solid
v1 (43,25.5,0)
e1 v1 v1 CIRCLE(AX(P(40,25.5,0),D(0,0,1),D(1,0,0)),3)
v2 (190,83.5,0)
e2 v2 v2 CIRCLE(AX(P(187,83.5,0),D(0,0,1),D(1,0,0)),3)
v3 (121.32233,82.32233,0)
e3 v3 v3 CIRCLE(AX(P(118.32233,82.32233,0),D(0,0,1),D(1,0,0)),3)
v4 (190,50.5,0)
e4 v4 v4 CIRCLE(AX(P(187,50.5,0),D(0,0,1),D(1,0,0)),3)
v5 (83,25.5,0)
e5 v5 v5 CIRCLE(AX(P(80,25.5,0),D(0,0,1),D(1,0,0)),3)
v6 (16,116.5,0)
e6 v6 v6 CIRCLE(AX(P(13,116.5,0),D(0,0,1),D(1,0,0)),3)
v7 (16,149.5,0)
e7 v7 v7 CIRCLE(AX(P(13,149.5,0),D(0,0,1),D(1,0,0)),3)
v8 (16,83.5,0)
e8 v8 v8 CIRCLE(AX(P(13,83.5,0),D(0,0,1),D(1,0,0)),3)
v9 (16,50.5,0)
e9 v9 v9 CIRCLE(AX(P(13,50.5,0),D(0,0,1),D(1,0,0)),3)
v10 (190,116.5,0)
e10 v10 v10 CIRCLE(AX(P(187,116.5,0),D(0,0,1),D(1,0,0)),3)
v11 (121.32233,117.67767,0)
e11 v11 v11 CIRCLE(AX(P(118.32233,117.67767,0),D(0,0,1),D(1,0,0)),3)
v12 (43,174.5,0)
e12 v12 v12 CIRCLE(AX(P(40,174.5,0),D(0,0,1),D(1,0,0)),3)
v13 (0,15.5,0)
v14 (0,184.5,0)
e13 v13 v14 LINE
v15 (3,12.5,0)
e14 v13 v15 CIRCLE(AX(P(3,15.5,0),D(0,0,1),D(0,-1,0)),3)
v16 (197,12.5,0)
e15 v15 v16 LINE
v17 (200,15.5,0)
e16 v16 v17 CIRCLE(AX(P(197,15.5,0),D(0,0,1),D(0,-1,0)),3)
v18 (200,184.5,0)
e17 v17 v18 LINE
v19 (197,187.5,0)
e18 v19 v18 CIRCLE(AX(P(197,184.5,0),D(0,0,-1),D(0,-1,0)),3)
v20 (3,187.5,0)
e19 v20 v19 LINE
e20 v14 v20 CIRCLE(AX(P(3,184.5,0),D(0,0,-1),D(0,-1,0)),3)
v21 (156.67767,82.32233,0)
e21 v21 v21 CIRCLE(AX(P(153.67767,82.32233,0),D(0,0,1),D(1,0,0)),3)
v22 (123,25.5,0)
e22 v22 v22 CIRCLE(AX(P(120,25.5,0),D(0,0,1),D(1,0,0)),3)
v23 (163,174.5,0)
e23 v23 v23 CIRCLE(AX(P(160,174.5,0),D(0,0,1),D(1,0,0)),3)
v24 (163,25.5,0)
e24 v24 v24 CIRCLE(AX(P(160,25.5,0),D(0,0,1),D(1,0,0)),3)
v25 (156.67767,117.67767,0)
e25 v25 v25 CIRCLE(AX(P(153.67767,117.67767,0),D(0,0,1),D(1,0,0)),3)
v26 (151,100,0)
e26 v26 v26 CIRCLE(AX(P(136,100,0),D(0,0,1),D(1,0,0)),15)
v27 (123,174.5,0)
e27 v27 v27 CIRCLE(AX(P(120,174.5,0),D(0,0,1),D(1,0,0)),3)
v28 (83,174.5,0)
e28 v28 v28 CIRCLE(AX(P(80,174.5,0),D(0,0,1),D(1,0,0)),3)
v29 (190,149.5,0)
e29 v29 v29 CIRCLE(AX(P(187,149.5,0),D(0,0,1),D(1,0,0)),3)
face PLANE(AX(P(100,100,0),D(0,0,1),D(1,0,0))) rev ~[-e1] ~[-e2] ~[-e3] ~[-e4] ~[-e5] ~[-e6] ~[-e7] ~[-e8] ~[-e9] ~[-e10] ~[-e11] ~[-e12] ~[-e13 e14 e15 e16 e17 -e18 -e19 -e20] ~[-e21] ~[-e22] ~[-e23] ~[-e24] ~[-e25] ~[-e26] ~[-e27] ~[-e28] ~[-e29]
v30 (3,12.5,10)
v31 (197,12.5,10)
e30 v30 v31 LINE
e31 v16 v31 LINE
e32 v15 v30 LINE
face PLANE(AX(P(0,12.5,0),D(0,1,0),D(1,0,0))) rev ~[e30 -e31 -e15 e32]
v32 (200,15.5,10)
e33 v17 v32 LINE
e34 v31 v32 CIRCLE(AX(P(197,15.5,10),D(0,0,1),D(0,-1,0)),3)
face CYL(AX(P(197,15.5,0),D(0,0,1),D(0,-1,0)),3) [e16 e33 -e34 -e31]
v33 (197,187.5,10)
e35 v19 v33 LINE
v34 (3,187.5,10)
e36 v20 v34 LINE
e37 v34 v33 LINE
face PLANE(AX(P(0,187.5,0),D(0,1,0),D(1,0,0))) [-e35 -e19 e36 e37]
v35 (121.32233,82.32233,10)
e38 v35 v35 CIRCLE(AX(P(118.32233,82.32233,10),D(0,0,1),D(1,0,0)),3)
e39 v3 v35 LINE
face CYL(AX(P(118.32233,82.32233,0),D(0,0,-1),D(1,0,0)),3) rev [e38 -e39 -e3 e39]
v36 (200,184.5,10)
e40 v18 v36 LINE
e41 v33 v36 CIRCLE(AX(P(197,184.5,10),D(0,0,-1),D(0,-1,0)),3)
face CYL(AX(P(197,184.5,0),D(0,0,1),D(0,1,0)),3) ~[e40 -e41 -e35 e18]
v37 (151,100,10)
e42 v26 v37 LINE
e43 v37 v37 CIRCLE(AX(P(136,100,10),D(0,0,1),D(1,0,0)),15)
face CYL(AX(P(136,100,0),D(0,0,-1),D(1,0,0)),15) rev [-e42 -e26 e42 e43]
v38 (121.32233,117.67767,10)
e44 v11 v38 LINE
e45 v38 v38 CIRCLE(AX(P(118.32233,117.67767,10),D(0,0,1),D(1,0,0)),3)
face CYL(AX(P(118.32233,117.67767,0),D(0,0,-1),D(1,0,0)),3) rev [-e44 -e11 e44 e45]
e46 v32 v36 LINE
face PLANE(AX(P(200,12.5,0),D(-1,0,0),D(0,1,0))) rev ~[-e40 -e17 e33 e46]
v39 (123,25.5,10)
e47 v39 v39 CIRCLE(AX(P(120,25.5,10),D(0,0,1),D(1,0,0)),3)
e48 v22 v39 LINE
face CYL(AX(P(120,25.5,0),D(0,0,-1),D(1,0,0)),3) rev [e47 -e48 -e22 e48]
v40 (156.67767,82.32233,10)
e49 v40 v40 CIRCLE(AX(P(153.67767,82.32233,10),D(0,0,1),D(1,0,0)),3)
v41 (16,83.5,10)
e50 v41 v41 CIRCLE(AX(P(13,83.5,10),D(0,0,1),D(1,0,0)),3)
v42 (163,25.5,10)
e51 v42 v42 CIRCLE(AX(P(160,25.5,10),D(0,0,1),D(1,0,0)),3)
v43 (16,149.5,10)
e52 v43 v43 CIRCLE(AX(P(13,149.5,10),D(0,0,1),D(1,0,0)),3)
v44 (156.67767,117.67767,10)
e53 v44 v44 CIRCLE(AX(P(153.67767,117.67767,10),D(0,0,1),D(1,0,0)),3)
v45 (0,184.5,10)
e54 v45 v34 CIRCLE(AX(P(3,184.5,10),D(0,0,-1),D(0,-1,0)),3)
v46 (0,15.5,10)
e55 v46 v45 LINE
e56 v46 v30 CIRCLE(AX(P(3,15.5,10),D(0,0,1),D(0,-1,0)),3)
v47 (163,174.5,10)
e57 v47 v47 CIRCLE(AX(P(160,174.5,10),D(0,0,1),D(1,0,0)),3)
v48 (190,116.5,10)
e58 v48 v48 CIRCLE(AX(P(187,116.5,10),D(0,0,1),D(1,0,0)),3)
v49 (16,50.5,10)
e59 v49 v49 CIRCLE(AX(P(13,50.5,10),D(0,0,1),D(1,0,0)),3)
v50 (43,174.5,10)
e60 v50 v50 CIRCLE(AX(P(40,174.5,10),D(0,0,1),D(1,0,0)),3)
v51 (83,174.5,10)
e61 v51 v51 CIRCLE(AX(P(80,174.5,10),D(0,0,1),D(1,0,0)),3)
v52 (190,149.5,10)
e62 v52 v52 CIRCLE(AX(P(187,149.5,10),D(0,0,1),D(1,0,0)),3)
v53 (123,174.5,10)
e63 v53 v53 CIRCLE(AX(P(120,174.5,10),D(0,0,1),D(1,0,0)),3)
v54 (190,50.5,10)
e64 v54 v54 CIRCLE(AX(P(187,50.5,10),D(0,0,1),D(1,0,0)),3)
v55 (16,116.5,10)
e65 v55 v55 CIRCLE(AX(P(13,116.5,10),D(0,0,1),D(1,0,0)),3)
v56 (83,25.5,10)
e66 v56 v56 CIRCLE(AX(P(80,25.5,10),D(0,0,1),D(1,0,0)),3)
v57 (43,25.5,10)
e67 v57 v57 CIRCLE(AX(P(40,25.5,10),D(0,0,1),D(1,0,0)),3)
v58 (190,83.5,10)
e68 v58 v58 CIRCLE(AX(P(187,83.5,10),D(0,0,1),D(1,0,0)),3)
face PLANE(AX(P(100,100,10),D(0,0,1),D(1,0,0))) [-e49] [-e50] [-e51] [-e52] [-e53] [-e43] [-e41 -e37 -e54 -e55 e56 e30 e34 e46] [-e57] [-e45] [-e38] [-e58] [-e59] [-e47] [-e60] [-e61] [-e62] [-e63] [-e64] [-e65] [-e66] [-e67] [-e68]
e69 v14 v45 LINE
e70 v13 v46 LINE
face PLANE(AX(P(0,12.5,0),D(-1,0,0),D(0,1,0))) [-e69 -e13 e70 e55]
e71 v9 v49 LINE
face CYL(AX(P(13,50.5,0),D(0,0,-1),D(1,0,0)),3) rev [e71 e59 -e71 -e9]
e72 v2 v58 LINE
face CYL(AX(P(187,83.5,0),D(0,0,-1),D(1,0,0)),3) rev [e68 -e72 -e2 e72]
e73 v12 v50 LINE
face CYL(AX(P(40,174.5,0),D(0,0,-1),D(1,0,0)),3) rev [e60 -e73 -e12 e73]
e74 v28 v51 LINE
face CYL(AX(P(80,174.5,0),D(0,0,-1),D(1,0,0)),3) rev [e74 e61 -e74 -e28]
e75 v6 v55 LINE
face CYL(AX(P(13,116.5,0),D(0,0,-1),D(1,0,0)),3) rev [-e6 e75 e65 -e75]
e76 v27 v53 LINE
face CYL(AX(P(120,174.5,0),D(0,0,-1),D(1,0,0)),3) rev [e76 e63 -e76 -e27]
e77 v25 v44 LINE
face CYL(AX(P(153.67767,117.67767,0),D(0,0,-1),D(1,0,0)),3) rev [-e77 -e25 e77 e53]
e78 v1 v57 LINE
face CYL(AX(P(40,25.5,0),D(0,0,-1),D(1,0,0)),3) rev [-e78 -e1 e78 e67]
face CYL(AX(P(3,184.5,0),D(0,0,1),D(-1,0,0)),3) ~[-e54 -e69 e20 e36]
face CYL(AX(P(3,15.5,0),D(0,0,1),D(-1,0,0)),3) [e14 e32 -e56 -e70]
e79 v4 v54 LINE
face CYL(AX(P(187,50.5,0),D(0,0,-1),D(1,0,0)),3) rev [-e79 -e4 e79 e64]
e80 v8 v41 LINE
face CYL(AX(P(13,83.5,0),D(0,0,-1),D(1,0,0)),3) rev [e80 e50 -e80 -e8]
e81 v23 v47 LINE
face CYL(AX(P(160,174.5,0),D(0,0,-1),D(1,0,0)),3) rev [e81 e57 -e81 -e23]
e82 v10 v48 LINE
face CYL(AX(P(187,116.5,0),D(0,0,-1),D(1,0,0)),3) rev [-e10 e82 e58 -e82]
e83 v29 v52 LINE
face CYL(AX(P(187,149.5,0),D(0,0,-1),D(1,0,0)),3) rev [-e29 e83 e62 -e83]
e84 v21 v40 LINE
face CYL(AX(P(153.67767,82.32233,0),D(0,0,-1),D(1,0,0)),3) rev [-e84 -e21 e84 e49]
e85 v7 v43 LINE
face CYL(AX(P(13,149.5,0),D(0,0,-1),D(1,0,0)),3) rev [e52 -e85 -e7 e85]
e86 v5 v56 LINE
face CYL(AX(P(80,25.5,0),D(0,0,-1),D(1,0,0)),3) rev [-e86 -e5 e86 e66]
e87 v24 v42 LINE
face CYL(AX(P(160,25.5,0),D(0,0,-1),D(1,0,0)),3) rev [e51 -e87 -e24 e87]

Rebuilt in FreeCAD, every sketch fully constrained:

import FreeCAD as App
import Part
import Sketcher
from FreeCAD import Vector


def edges_at(feature, points):
    """Names of the edges that pass closest to the given points."""
    edges = feature.Shape.Edges
    near = lambda p: min(range(len(edges)), key=lambda i: edges[i].distToShape(Part.Vertex(*p))[0])
    return sorted({f"Edge{near(p) + 1}" for p in points})

doc = App.newDocument("Part")
body = doc.addObject("PartDesign::Body", "Body")

# Sketch on XY plane
sketch1 = body.newObject("Sketcher::SketchObject", "Sketch")
sketch1.AttachmentSupport = (doc.getObject("XY_Plane"), [""])
sketch1.MapMode = "FlatFace"
sketch1.addGeometry([
    Part.LineSegment(Vector(0, 187.5, 0), Vector(0, 12.5, 0)),  # 0
    Part.LineSegment(Vector(0, 12.5, 0), Vector(200, 12.5, 0)),  # 1
    Part.LineSegment(Vector(200, 12.5, 0), Vector(200, 187.5, 0)),  # 2
    Part.LineSegment(Vector(200, 187.5, 0), Vector(0, 187.5, 0)),  # 3
    Part.Circle(Vector(40, 25.5, 0), Vector(0, 0, 1), 3),  # 4
    Part.Circle(Vector(13, 50.5, 0), Vector(0, 0, 1), 3),  # 5
    Part.Circle(Vector(80, 25.5, 0), Vector(0, 0, 1), 3),  # 6
    Part.Circle(Vector(13, 83.5, 0), Vector(0, 0, 1), 3),  # 7
    Part.Circle(Vector(120, 25.5, 0), Vector(0, 0, 1), 3),  # 8
    Part.Circle(Vector(160, 25.5, 0), Vector(0, 0, 1), 3),  # 9
    Part.Circle(Vector(187, 50.5, 0), Vector(0, 0, 1), 3),  # 10
    Part.Circle(Vector(118.3, 82.3, 0), Vector(0, 0, 1), 3),  # 11
    Part.Circle(Vector(153.7, 82.3, 0), Vector(0, 0, 1), 3),  # 12
    Part.Circle(Vector(187, 83.5, 0), Vector(0, 0, 1), 3),  # 13
    Part.Circle(Vector(13, 116.5, 0), Vector(0, 0, 1), 3),  # 14
    Part.Circle(Vector(13, 149.5, 0), Vector(0, 0, 1), 3),  # 15
    Part.Circle(Vector(40, 174.5, 0), Vector(0, 0, 1), 3),  # 16
    Part.Circle(Vector(80, 174.5, 0), Vector(0, 0, 1), 3),  # 17
    Part.Circle(Vector(118.3, 117.7, 0), Vector(0, 0, 1), 3),  # 18
    Part.Circle(Vector(136, 100, 0), Vector(0, 0, 1), 15),  # 19
    Part.Circle(Vector(153.7, 117.7, 0), Vector(0, 0, 1), 3),  # 20
    Part.Circle(Vector(187, 116.5, 0), Vector(0, 0, 1), 3),  # 21
    Part.Circle(Vector(120, 174.5, 0), Vector(0, 0, 1), 3),  # 22
    Part.Circle(Vector(187, 149.5, 0), Vector(0, 0, 1), 3),  # 23
    Part.Circle(Vector(160, 174.5, 0), Vector(0, 0, 1), 3),  # 24
], False)
sketch1.addConstraint([
    Sketcher.Constraint("Coincident", 0, 2, 1, 1),
    Sketcher.Constraint("Coincident", 1, 2, 2, 1),
    Sketcher.Constraint("Coincident", 2, 2, 3, 1),
    Sketcher.Constraint("Coincident", 3, 2, 0, 1),
    Sketcher.Constraint("Vertical", 0),
    Sketcher.Constraint("Horizontal", 1),
    Sketcher.Constraint("Vertical", 2),
    Sketcher.Constraint("Horizontal", 3),
    Sketcher.Constraint("Equal", 4, 5),
    Sketcher.Constraint("Equal", 5, 6),
    Sketcher.Constraint("Equal", 6, 7),
    Sketcher.Constraint("Equal", 7, 8),
    Sketcher.Constraint("Equal", 8, 9),
    Sketcher.Constraint("Equal", 9, 10),
    Sketcher.Constraint("Equal", 10, 11),
    Sketcher.Constraint("Equal", 11, 12),
    Sketcher.Constraint("Equal", 12, 13),
    Sketcher.Constraint("Equal", 13, 14),
    Sketcher.Constraint("Equal", 14, 15),
    Sketcher.Constraint("Equal", 15, 16),
    Sketcher.Constraint("Equal", 16, 17),
    Sketcher.Constraint("Equal", 17, 18),
    Sketcher.Constraint("Equal", 18, 20),
    Sketcher.Constraint("Equal", 20, 21),
    Sketcher.Constraint("Equal", 21, 22),
    Sketcher.Constraint("Equal", 22, 23),
    Sketcher.Constraint("Equal", 23, 24),
    Sketcher.Constraint("PointOnObject", 0, 2, -2),
    Sketcher.Constraint("Horizontal", 4, 3, 6, 3),
    Sketcher.Constraint("Horizontal", 6, 3, 8, 3),
    Sketcher.Constraint("Horizontal", 8, 3, 9, 3),
    Sketcher.Constraint("Horizontal", 5, 3, 10, 3),
    Sketcher.Constraint("Horizontal", 11, 3, 12, 3),
    Sketcher.Constraint("Horizontal", 7, 3, 13, 3),
    Sketcher.Constraint("Horizontal", 16, 3, 17, 3),
    Sketcher.Constraint("Horizontal", 18, 3, 20, 3),
    Sketcher.Constraint("Horizontal", 14, 3, 21, 3),
    Sketcher.Constraint("Horizontal", 17, 3, 22, 3),
    Sketcher.Constraint("Horizontal", 15, 3, 23, 3),
    Sketcher.Constraint("Horizontal", 22, 3, 24, 3),
    Sketcher.Constraint("Vertical", 5, 3, 7, 3),
    Sketcher.Constraint("Vertical", 10, 3, 13, 3),
    Sketcher.Constraint("Vertical", 7, 3, 14, 3),
    Sketcher.Constraint("Vertical", 14, 3, 15, 3),
    Sketcher.Constraint("Vertical", 4, 3, 16, 3),
    Sketcher.Constraint("Vertical", 6, 3, 17, 3),
    Sketcher.Constraint("Vertical", 11, 3, 18, 3),
    Sketcher.Constraint("Vertical", 12, 3, 20, 3),
    Sketcher.Constraint("Vertical", 13, 3, 21, 3),
    Sketcher.Constraint("Vertical", 8, 3, 22, 3),
    Sketcher.Constraint("Vertical", 21, 3, 23, 3),
    Sketcher.Constraint("Vertical", 9, 3, 24, 3),
    Sketcher.Constraint("Diameter", 4, 6.0),
    Sketcher.Constraint("Diameter", 19, 30.0),
    Sketcher.Constraint("DistanceX", 1, 1, 1, 2, 200.0),
    Sketcher.Constraint("DistanceY", 0, 2, 0, 1, 175.0),
    Sketcher.Constraint("DistanceX", -1, 1, 4, 3, 40.0),
    Sketcher.Constraint("DistanceX", -1, 1, 5, 3, 13.0),
    Sketcher.Constraint("DistanceX", -1, 1, 6, 3, 80.0),
    Sketcher.Constraint("DistanceX", -1, 1, 8, 3, 120.0),
    Sketcher.Constraint("DistanceX", -1, 1, 9, 3, 160.0),
    Sketcher.Constraint("DistanceX", -1, 1, 10, 3, 187.0),
    Sketcher.Constraint("DistanceX", -1, 1, 19, 3, 136.0),
    Sketcher.Constraint("DistanceY", -1, 1, 19, 3, 100.0),
    Sketcher.Constraint("DistanceY", 4, 3, 5, 3, 25.0),
    Sketcher.Constraint("DistanceY", 5, 3, 7, 3, 33.0),
    Sketcher.Constraint("DistanceY", 7, 3, 14, 3, 33.0),
    Sketcher.Constraint("DistanceY", 14, 3, 15, 3, 33.0),
    Sketcher.Constraint("DistanceY", 15, 3, 16, 3, 25.0),
    Sketcher.Constraint("DistanceY", 0, 2, 5, 3, 38.0),
    Sketcher.Constraint("DistanceY", -1, 1, 4, 3, 25.5),
    Sketcher.Constraint("DistanceX", -1, 1, 11, 3, 118.32233),
    Sketcher.Constraint("DistanceY", -1, 1, 11, 3, 82.32233),
    Sketcher.Constraint("DistanceX", -1, 1, 12, 3, 153.67767),
    Sketcher.Constraint("DistanceY", -1, 1, 18, 3, 117.67767),
])
pad1 = body.newObject("PartDesign::Pad", "Pad")
pad1.Profile = sketch1
pad1.Length = 10
doc.recompute()

fillet = body.newObject("PartDesign::Fillet", "Fillet")
fillet.Base = (pad1, edges_at(pad1, [
    (0, 12.5, 5),
    (200, 12.5, 5),
    (0, 187.5, 5),
    (200, 187.5, 5),
]))
fillet.Radius = 3

doc.recompute()
